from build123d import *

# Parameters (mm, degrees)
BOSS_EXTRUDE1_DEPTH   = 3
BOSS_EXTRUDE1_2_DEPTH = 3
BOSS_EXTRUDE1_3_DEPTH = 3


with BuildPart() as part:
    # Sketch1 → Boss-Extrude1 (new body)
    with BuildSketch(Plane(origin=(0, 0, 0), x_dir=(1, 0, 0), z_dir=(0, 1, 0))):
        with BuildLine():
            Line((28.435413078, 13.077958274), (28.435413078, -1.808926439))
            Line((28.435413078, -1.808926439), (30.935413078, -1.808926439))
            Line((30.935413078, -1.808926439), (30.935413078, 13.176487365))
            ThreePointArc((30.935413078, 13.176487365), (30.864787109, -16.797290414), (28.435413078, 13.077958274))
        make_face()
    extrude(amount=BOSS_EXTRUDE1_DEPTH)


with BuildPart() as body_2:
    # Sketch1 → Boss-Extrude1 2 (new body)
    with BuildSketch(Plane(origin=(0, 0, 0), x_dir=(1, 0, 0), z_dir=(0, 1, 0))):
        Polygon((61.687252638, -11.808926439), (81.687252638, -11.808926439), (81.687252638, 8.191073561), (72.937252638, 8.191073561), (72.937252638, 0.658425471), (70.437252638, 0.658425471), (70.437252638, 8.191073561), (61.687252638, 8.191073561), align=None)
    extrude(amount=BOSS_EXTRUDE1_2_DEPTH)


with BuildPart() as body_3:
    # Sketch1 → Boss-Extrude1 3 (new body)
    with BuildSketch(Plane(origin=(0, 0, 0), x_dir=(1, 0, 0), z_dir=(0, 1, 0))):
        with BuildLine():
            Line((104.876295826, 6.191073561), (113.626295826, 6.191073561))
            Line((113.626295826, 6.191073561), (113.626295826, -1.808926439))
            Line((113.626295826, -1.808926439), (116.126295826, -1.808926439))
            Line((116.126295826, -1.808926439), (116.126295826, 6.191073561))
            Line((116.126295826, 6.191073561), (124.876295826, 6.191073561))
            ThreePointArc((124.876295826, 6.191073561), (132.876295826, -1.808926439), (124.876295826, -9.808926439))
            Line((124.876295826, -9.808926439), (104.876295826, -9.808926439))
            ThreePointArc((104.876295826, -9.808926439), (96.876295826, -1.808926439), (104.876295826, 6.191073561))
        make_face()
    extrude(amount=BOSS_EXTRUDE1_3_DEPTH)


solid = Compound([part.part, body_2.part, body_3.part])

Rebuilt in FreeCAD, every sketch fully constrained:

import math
import FreeCAD as App
import Part
import Sketcher

V = App.Vector
Q = App.Units.Quantity

doc = App.newDocument("Part")
body = doc.addObject("PartDesign::Body", "Body")

sketch1 = doc.addObject("Sketcher::SketchObject", "Sketch")
body.addObject(sketch1)
sketch1.AttachmentSupport = (doc.XZ_Plane, [""])
sketch1.MapMode = "FlatFace"
sketch1.addGeometry([
    Part.LineSegment(V(28.4, 1.8, 0), V(28.4, -13.1, 0)),
    Part.ArcOfCircle(Part.Circle(V(30.3, 1.8, 0), V(0, 0, 1), 15), math.radians(-87), math.radians(263)),
    Part.LineSegment(V(30.9, -13.2, 0), V(30.9, 1.8, 0)),
    Part.LineSegment(V(30.9, 1.8, 0), V(28.4, 1.8, 0)),
], False)
sketch1.addConstraint([
    Sketcher.Constraint("Coincident", 0, 2, 1, 2),
    Sketcher.Constraint("Coincident", 1, 1, 2, 1),
    Sketcher.Constraint("Coincident", 2, 2, 3, 1),
    Sketcher.Constraint("Coincident", 3, 2, 0, 1),
    Sketcher.Constraint("Vertical", 0),
    Sketcher.Constraint("Vertical", 2),
    Sketcher.Constraint("Horizontal", 3),
    Sketcher.Constraint("Horizontal", 1, 3, 2, 2),
    Sketcher.Constraint("Radius", 1, Q("15 mm")),
    Sketcher.Constraint("DistanceX", 3, 2, 3, 1, Q("2.5 mm")),
    Sketcher.Constraint("DistanceY", 0, 2, 0, 1, Q("14.886885 mm")),
    Sketcher.Constraint("DistanceX", -1, 1, 1, 3, Q("30.274071 mm")),
    Sketcher.Constraint("DistanceY", 0, 2, -1, 1, Q("13.077958 mm")),
])
pad1 = doc.addObject("PartDesign::Pad", "Pad")
body.addObject(pad1)
pad1.Profile = sketch1
pad1.Length = 3
pad1.Reversed = True
body2 = doc.addObject("PartDesign::Body", "Body001")

sketch2 = doc.addObject("Sketcher::SketchObject", "Sketch001")
body2.addObject(sketch2)
sketch2.AttachmentSupport = (doc.getObject("XZ_Plane001"), [""])
sketch2.MapMode = "FlatFace"
sketch2.addGeometry([
    Part.LineSegment(V(61.7, 11.8, 0), V(81.7, 11.8, 0)),
    Part.LineSegment(V(81.7, 11.8, 0), V(81.7, -8.2, 0)),
    Part.LineSegment(V(81.7, -8.2, 0), V(72.9, -8.2, 0)),
    Part.LineSegment(V(72.9, -8.2, 0), V(72.9, -0.7, 0)),
    Part.LineSegment(V(72.9, -0.7, 0), V(70.4, -0.7, 0)),
    Part.LineSegment(V(70.4, -0.7, 0), V(70.4, -8.2, 0)),
    Part.LineSegment(V(70.4, -8.2, 0), V(61.7, -8.2, 0)),
    Part.LineSegment(V(61.7, -8.2, 0), V(61.7, 11.8, 0)),
], False)
sketch2.addConstraint([
    Sketcher.Constraint("Coincident", 0, 2, 1, 1),
    Sketcher.Constraint("Coincident", 1, 2, 2, 1),
    Sketcher.Constraint("Coincident", 2, 2, 3, 1),
    Sketcher.Constraint("Coincident", 3, 2, 4, 1),
    Sketcher.Constraint("Coincident", 4, 2, 5, 1),
    Sketcher.Constraint("Coincident", 5, 2, 6, 1),
    Sketcher.Constraint("Coincident", 6, 2, 7, 1),
    Sketcher.Constraint("Coincident", 7, 2, 0, 1),
    Sketcher.Constraint("Horizontal", 0),
    Sketcher.Constraint("Vertical", 1),
    Sketcher.Constraint("Horizontal", 2),
    Sketcher.Constraint("Vertical", 3),
    Sketcher.Constraint("Horizontal", 4),
    Sketcher.Constraint("Vertical", 5),
    Sketcher.Constraint("Horizontal", 6),
    Sketcher.Constraint("Vertical", 7),
    Sketcher.Constraint("Horizontal", 2, 2, 5, 2),
    Sketcher.Constraint("Equal", 2, 6),
    Sketcher.Constraint("Equal", 0, 1),
    Sketcher.Constraint("DistanceX", 0, 1, 0, 2, Q("20 mm")),
    Sketcher.Constraint("DistanceX", 4, 2, 4, 1, Q("2.5 mm")),
    Sketcher.Constraint("DistanceY", 3, 1, 3, 2, Q("7.532648 mm")),
    Sketcher.Constraint("DistanceX", -1, 1, 0, 2, Q("81.687253 mm")),
    Sketcher.Constraint("DistanceY", -1, 1, 0, 2, Q("11.808926 mm")),
])
pad2 = doc.addObject("PartDesign::Pad", "Pad001")
body2.addObject(pad2)
pad2.Profile = sketch2
pad2.Length = 3
pad2.Reversed = True
body3 = doc.addObject("PartDesign::Body", "Body002")

sketch3 = doc.addObject("Sketcher::SketchObject", "Sketch002")
body3.addObject(sketch3)
sketch3.AttachmentSupport = (doc.getObject("XZ_Plane002"), [""])
sketch3.MapMode = "FlatFace"
sketch3.addGeometry([
    Part.LineSegment(V(113.6, -6.2, 0), V(104.9, -6.2, 0)),
    Part.ArcOfCircle(Part.Circle(V(104.9, 1.8, 0), V(0, 0, 1), 8), math.radians(90), math.radians(270)),
    Part.LineSegment(V(104.9, 9.8, 0), V(124.9, 9.8, 0)),
    Part.ArcOfCircle(Part.Circle(V(124.9, 1.8, 0), V(0, 0, 1), 8), math.radians(-90), math.radians(90)),
    Part.LineSegment(V(124.9, -6.2, 0), V(116.1, -6.2, 0)),
    Part.LineSegment(V(116.1, -6.2, 0), V(116.1, 1.8, 0)),
    Part.LineSegment(V(116.1, 1.8, 0), V(113.6, 1.8, 0)),
    Part.LineSegment(V(113.6, 1.8, 0), V(113.6, -6.2, 0)),
], False)
sketch3.addConstraint([
    Sketcher.Constraint("Tangent", 0, 2, 1, 2),
    Sketcher.Constraint("Tangent", 1, 1, 2, 1),
    Sketcher.Constraint("Tangent", 2, 2, 3, 2),
    Sketcher.Constraint("Tangent", 3, 1, 4, 1),
    Sketcher.Constraint("Coincident", 4, 2, 5, 1),
    Sketcher.Constraint("Coincident", 5, 2, 6, 1),
    Sketcher.Constraint("Coincident", 6, 2, 7, 1),
    Sketcher.Constraint("Coincident", 7, 2, 0, 1),
    Sketcher.Constraint("Horizontal", 0),
    Sketcher.Constraint("Horizontal", 2),
    Sketcher.Constraint("Horizontal", 4),
    Sketcher.Constraint("Vertical", 5),
    Sketcher.Constraint("Horizontal", 6),
    Sketcher.Constraint("Vertical", 7),
    Sketcher.Constraint("Equal", 1, 3),
    Sketcher.Constraint("Horizontal", 3, 3, 5, 2),
    Sketcher.Constraint("Equal", 0, 4),
    Sketcher.Constraint("Radius", 1, Q("8 mm")),
    Sketcher.Constraint("DistanceX", 2, 1, 2, 2, Q("20 mm")),
    Sketcher.Constraint("DistanceX", 6, 2, 6, 1, Q("2.5 mm")),
    Sketcher.Constraint("DistanceX", -1, 1, 1, 3, Q("104.876296 mm")),
    Sketcher.Constraint("DistanceY", -1, 1, 1, 3, Q("1.808926 mm")),
])
pad3 = doc.addObject("PartDesign::Pad", "Pad002")
body3.addObject(pad3)
pad3.Profile = sketch3
pad3.Length = 3
pad3.Reversed = True

doc.recompute()
